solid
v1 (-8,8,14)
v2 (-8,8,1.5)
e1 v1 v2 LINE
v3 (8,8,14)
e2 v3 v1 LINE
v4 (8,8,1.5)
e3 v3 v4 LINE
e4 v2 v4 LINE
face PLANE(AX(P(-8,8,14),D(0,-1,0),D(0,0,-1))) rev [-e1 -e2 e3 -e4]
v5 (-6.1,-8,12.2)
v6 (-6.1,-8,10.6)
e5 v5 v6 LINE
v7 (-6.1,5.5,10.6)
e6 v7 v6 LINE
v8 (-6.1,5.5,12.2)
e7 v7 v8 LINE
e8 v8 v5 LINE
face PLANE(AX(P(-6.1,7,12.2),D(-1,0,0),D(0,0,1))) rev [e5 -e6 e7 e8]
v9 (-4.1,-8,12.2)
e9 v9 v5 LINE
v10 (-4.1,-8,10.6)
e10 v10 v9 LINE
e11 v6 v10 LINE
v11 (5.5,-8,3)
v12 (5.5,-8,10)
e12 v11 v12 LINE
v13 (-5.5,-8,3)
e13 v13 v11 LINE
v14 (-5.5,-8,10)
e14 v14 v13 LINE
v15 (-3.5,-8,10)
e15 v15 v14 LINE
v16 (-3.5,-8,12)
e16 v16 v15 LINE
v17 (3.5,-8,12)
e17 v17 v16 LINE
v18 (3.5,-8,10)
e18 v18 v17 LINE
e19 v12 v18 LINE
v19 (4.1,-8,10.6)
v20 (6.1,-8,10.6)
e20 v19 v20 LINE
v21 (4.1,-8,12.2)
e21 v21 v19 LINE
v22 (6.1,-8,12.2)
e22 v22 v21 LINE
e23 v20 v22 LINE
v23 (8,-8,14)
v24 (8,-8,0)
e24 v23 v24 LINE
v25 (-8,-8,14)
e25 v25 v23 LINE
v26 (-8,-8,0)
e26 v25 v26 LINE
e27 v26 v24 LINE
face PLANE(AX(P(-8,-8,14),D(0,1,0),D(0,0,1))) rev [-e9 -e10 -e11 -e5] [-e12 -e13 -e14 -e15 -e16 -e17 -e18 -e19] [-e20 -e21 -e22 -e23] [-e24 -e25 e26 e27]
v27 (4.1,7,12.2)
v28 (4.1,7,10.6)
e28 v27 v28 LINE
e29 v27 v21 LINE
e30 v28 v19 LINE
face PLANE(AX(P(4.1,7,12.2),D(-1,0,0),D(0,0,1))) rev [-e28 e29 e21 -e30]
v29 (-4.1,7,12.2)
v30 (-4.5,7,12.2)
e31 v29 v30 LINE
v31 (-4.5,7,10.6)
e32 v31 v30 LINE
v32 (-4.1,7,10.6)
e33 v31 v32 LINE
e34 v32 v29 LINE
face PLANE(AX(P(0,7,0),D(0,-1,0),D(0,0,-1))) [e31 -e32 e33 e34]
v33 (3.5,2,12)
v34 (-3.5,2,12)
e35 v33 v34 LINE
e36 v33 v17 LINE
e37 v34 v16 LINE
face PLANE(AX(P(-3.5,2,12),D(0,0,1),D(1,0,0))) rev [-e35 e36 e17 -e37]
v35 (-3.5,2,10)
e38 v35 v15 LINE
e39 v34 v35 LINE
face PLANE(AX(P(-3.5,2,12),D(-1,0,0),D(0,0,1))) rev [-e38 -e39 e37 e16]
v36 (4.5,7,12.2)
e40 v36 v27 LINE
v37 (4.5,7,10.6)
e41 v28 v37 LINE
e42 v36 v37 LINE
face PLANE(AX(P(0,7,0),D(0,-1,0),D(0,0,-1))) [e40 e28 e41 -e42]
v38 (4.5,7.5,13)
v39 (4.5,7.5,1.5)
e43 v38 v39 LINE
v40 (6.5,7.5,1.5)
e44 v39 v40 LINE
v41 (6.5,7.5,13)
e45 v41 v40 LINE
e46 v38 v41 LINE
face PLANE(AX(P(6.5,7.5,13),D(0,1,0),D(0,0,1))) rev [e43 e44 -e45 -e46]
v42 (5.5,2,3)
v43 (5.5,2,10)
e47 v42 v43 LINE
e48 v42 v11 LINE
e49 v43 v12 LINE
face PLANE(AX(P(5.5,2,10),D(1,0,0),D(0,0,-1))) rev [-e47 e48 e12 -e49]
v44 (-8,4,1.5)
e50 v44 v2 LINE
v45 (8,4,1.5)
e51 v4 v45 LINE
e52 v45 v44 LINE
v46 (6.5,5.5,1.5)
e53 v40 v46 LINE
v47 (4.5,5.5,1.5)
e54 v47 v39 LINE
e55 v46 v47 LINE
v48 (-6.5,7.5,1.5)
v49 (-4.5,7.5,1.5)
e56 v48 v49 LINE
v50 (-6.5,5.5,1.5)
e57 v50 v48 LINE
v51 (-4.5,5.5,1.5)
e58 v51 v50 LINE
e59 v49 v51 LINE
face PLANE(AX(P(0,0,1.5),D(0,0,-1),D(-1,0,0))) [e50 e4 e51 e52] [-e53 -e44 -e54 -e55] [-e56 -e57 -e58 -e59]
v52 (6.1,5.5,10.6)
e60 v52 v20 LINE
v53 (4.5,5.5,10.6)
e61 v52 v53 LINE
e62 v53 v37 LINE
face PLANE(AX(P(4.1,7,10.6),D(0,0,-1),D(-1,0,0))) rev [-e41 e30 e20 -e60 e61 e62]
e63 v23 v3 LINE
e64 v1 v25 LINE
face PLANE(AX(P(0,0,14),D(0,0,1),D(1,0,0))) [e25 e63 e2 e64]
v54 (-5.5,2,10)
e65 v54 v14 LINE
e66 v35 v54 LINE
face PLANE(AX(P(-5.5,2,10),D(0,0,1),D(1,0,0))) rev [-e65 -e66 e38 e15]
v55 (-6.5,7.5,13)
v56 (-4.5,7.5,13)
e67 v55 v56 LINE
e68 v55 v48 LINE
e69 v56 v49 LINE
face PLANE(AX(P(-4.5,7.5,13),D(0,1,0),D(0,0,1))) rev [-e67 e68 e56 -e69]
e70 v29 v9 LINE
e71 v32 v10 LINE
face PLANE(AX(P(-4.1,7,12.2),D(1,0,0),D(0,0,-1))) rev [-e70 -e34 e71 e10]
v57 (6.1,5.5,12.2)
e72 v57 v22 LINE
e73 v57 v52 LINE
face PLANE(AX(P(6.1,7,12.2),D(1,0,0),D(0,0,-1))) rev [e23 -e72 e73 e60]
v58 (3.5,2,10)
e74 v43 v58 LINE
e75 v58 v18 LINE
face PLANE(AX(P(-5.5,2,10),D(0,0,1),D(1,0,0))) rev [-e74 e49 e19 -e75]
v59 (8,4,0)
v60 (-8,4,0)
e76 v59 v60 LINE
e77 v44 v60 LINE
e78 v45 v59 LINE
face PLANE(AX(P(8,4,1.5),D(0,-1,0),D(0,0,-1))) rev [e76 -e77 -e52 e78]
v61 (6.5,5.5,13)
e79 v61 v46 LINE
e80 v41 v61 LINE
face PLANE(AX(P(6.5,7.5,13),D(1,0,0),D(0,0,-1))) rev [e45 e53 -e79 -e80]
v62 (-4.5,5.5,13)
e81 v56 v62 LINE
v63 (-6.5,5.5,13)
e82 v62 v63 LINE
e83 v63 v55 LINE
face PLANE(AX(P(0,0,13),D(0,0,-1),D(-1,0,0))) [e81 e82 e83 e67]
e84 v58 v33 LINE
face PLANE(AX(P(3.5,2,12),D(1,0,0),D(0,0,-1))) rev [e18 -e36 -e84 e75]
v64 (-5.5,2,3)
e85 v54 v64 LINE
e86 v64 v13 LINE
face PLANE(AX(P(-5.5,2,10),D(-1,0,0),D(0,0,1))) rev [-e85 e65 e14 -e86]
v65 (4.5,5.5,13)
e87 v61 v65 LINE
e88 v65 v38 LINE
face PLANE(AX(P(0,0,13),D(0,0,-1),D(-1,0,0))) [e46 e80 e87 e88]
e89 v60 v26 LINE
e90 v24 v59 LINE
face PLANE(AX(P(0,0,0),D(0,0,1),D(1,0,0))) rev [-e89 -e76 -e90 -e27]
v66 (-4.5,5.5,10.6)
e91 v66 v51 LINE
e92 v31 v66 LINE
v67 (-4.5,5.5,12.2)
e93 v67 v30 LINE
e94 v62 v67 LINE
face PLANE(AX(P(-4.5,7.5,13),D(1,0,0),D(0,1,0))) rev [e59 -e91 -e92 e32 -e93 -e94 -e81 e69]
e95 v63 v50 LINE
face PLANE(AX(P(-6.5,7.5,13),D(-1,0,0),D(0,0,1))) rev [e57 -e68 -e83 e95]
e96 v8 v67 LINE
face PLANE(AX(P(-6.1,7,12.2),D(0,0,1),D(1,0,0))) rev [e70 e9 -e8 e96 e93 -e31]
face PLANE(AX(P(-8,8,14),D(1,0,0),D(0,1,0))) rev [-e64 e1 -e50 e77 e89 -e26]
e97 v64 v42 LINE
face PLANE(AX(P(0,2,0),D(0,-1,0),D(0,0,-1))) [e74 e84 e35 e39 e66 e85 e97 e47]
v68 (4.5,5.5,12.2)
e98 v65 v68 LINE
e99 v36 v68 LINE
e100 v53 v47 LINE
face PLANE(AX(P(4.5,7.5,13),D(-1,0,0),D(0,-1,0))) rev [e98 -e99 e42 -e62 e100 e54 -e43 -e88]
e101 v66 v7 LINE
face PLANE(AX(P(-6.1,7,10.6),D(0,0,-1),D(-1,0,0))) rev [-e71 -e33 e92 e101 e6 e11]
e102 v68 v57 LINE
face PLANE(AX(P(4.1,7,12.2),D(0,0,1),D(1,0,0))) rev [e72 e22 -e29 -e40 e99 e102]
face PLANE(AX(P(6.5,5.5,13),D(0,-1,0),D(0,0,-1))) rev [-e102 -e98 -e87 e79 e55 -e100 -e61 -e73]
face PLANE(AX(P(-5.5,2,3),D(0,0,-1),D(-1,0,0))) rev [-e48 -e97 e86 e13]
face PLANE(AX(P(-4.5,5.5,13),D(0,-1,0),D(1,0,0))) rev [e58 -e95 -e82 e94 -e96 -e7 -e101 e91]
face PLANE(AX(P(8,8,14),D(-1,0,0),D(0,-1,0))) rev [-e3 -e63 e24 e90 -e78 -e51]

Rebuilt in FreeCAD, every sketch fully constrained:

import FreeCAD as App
import Part
import Sketcher

V = App.Vector
Q = App.Units.Quantity


def add_polygon(sketch, points):
    """Adds a closed chain of lines whose ends are joined by coincident constraints."""
    first, n = sketch.GeometryCount, len(points)
    for a, b in zip(points, points[1:] + points[:1]):
        sketch.addGeometry(Part.LineSegment(App.Vector(*a, 0), App.Vector(*b, 0)), False)
    for i in range(n):
        sketch.addConstraint(Sketcher.Constraint("Coincident", first + i, 2, first + (i + 1) % n, 1))

doc = App.newDocument("Part")
body = doc.addObject("PartDesign::Body", "Body")

# Sketch on XY plane
sketch1 = doc.addObject("Sketcher::SketchObject", "Sketch")
body.addObject(sketch1)
sketch1.AttachmentSupport = (doc.XY_Plane, [""])
sketch1.MapMode = "FlatFace"
add_polygon(sketch1, [(-8, 8), (-8, -8), (8, -8), (8, 8)])  # lines 0-3
sketch1.addConstraint(Sketcher.Constraint("Vertical", 0))
sketch1.addConstraint(Sketcher.Constraint("Horizontal", 1))
sketch1.addConstraint(Sketcher.Constraint("Vertical", 2))
sketch1.addConstraint(Sketcher.Constraint("Horizontal", 3))
sketch1.addConstraint(Sketcher.Constraint("Symmetric", 0, 2, 2, 2, -1, 1))
sketch1.addConstraint(Sketcher.Constraint("Equal", 3, 0))
sketch1.addConstraint(Sketcher.Constraint("DistanceX", 1, 1, 1, 2, Q("16 mm")))
pad1 = doc.addObject("PartDesign::Pad", "Pad")
body.addObject(pad1)
pad1.Profile = sketch1
pad1.Length = 14

# Sketch on XZ plane
sketch2 = doc.addObject("Sketcher::SketchObject", "Sketch001")
body.addObject(sketch2)
sketch2.AttachmentSupport = (doc.XZ_Plane, [""])
sketch2.MapMode = "FlatFace"
sketch2.AttachmentOffset = App.Placement(V(0, 0, 8), App.Rotation())
add_polygon(sketch2, [(-6, 10), (-6, 3), (6, 3), (6, 10)])  # lines 0-3
sketch2.addConstraint(Sketcher.Constraint("Vertical", 0))
sketch2.addConstraint(Sketcher.Constraint("Horizontal", 1))
sketch2.addConstraint(Sketcher.Constraint("Vertical", 2))
sketch2.addConstraint(Sketcher.Constraint("Horizontal", 3))
sketch2.addConstraint(Sketcher.Constraint("DistanceX", 1, 1, 1, 2, Q("11 mm")))
sketch2.addConstraint(Sketcher.Constraint("DistanceY", 0, 2, 0, 1, Q("7 mm")))
sketch2.addConstraint(Sketcher.Constraint("DistanceY", -1, 1, 0, 2, Q("3 mm")))
sketch2.addConstraint(Sketcher.Constraint("DistanceX", 0, 2, -1, 1, Q("5.5 mm")))
pocket1 = doc.addObject("PartDesign::Pocket", "Pocket")
body.addObject(pocket1)
pocket1.Profile = sketch2
pocket1.Length = 10

# Sketch on XZ plane
sketch3 = doc.addObject("Sketcher::SketchObject", "Sketch002")
body.addObject(sketch3)
sketch3.AttachmentSupport = (doc.XZ_Plane, [""])
sketch3.MapMode = "FlatFace"
sketch3.AttachmentOffset = App.Placement(V(0, 0, 8), App.Rotation())
add_polygon(sketch3, [(-3.5, 12), (-3.5, 10), (3.5, 10), (3.5, 12)])  # lines 0-3
sketch3.addConstraint(Sketcher.Constraint("Vertical", 0))
sketch3.addConstraint(Sketcher.Constraint("Horizontal", 1))
sketch3.addConstraint(Sketcher.Constraint("Vertical", 2))
sketch3.addConstraint(Sketcher.Constraint("Horizontal", 3))
sketch3.addConstraint(Sketcher.Constraint("DistanceX", 1, 1, 1, 2, Q("7 mm")))
sketch3.addConstraint(Sketcher.Constraint("DistanceY", 0, 2, 0, 1, Q("2 mm")))
sketch3.addConstraint(Sketcher.Constraint("DistanceY", -1, 1, 0, 2, Q("10 mm")))
sketch3.addConstraint(Sketcher.Constraint("DistanceX", 0, 2, -1, 1, Q("3.5 mm")))
pocket2 = doc.addObject("PartDesign::Pocket", "Pocket001")
body.addObject(pocket2)
pocket2.Profile = sketch3
pocket2.Length = 10

# Sketch on XZ plane
sketch4 = doc.addObject("Sketcher::SketchObject", "Sketch003")
body.addObject(sketch4)
sketch4.AttachmentSupport = (doc.XZ_Plane, [""])
sketch4.MapMode = "FlatFace"
sketch4.AttachmentOffset = App.Placement(V(0, 0, 8), App.Rotation())
add_polygon(sketch4, [(4.1, 12.2), (4.1, 10.6), (6.1, 10.6), (6.1, 12.2)])  # lines 0-3
add_polygon(sketch4, [(-6.1, 12.2), (-6.1, 10.6), (-4.1, 10.6), (-4.1, 12.2)])  # lines 4-7
sketch4.addConstraint(Sketcher.Constraint("Vertical", 0))
sketch4.addConstraint(Sketcher.Constraint("Horizontal", 1))
sketch4.addConstraint(Sketcher.Constraint("Vertical", 2))
sketch4.addConstraint(Sketcher.Constraint("Horizontal", 3))
sketch4.addConstraint(Sketcher.Constraint("Vertical", 4))
sketch4.addConstraint(Sketcher.Constraint("Horizontal", 5))
sketch4.addConstraint(Sketcher.Constraint("Vertical", 6))
sketch4.addConstraint(Sketcher.Constraint("Horizontal", 7))
sketch4.addConstraint(Sketcher.Constraint("Symmetric", 1, 2, 4, 2, -2))
sketch4.addConstraint(Sketcher.Constraint("Symmetric", 3, 2, 6, 2, -2))
sketch4.addConstraint(Sketcher.Constraint("DistanceX", 1, 1, 1, 2, Q("2 mm")))
sketch4.addConstraint(Sketcher.Constraint("DistanceY", 0, 2, 0, 1, Q("1.6 mm")))
sketch4.addConstraint(Sketcher.Constraint("DistanceX", -1, 1, 0, 2, Q("4.1 mm")))
sketch4.addConstraint(Sketcher.Constraint("DistanceY", -1, 1, 0, 2, Q("10.6 mm")))
pocket3 = doc.addObject("PartDesign::Pocket", "Pocket002")
body.addObject(pocket3)
pocket3.Profile = sketch4
pocket3.Length = 15

# Sketch on XY plane
sketch5 = doc.addObject("Sketcher::SketchObject", "Sketch004")
body.addObject(sketch5)
sketch5.AttachmentSupport = (doc.XY_Plane, [""])
sketch5.MapMode = "FlatFace"
add_polygon(sketch5, [(8, 8), (8, 4), (-8, 4), (-8, 8)])  # lines 0-3
sketch5.addConstraint(Sketcher.Constraint("Vertical", 0))
sketch5.addConstraint(Sketcher.Constraint("Horizontal", 1))
sketch5.addConstraint(Sketcher.Constraint("Vertical", 2))
sketch5.addConstraint(Sketcher.Constraint("Horizontal", 3))
sketch5.addConstraint(Sketcher.Constraint("DistanceX", 1, 2, 1, 1, Q("16 mm")))
sketch5.addConstraint(Sketcher.Constraint("DistanceY", 0, 2, 0, 1, Q("4 mm")))
sketch5.addConstraint(Sketcher.Constraint("DistanceX", -1, 1, 0, 2, Q("8 mm")))
sketch5.addConstraint(Sketcher.Constraint("DistanceY", -1, 1, 0, 2, Q("4 mm")))
pocket4 = doc.addObject("PartDesign::Pocket", "Pocket003")
body.addObject(pocket4)
pocket4.Profile = sketch5
pocket4.Length = 1.5
pocket4.Reversed = True

# Sketch on XY plane
sketch6 = doc.addObject("Sketcher::SketchObject", "Sketch005")
body.addObject(sketch6)
sketch6.AttachmentSupport = (doc.XY_Plane, [""])
sketch6.MapMode = "FlatFace"
sketch6.AttachmentOffset = App.Placement(V(0, 0, 1.5), App.Rotation())
add_polygon(sketch6, [(6.5, 7.5), (6.5, 5.5), (4.5, 5.5), (4.5, 7.5)])  # lines 0-3
add_polygon(sketch6, [(-4.5, 7.5), (-4.5, 5.5), (-6.5, 5.5), (-6.5, 7.5)])  # lines 4-7
sketch6.addConstraint(Sketcher.Constraint("Vertical", 0))
sketch6.addConstraint(Sketcher.Constraint("Horizontal", 1))
sketch6.addConstraint(Sketcher.Constraint("Vertical", 2))
sketch6.addConstraint(Sketcher.Constraint("Horizontal", 3))
sketch6.addConstraint(Sketcher.Constraint("Vertical", 4))
sketch6.addConstraint(Sketcher.Constraint("Horizontal", 5))
sketch6.addConstraint(Sketcher.Constraint("Vertical", 6))
sketch6.addConstraint(Sketcher.Constraint("Horizontal", 7))
sketch6.addConstraint(Sketcher.Constraint("Symmetric", 1, 2, 4, 2, -2))
sketch6.addConstraint(Sketcher.Constraint("Symmetric", 3, 2, 6, 2, -2))
sketch6.addConstraint(Sketcher.Constraint("Equal", 7, 0))
sketch6.addConstraint(Sketcher.Constraint("DistanceX", 1, 2, 1, 1, Q("2 mm")))
sketch6.addConstraint(Sketcher.Constraint("DistanceX", 4, 2, 1, 2, Q("9 mm")))
sketch6.addConstraint(Sketcher.Constraint("DistanceY", -1, 1, 0, 2, Q("5.5 mm")))
pocket5 = doc.addObject("PartDesign::Pocket", "Pocket004")
body.addObject(pocket5)
pocket5.Profile = sketch6
pocket5.Length = 11.5
pocket5.Reversed = True

doc.recompute()
